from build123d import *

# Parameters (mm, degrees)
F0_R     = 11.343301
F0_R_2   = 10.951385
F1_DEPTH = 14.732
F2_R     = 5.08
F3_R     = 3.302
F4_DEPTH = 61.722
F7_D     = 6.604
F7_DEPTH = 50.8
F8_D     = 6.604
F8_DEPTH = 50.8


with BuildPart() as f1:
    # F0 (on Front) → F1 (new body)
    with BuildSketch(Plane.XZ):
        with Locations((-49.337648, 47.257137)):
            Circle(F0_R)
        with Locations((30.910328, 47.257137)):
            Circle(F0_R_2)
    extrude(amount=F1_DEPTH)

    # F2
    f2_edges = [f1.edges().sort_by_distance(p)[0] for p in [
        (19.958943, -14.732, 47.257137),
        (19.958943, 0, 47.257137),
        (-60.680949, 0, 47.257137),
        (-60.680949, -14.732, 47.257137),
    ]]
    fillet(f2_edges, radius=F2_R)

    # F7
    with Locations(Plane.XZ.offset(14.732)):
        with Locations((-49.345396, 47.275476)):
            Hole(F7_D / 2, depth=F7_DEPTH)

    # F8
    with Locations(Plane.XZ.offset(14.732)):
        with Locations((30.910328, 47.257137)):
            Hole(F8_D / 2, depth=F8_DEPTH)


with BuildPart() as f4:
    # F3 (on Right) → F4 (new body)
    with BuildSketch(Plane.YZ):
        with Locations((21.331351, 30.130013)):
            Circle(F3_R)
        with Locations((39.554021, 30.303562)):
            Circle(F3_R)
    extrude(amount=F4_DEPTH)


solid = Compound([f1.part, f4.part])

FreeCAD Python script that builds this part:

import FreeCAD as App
import Part
import Sketcher
Q = App.Units.Quantity


def edges_at(feature, points):
    """Names of the edges that pass closest to the given points."""
    edges = feature.Shape.Edges
    near = lambda p: min(range(len(edges)), key=lambda i: edges[i].distToShape(Part.Vertex(*p))[0])
    return sorted({f"Edge{near(p) + 1}" for p in points})

doc = App.newDocument("Part")
body = doc.addObject("PartDesign::Body", "Body")
body.AllowCompound = True

# Sketch on XZ plane
sketch1 = body.newObject("Sketcher::SketchObject", "Sketch")
sketch1.AttachmentSupport = (doc.getObject("XZ_Plane"), [""])
sketch1.MapMode = "FlatFace"
sketch1.addGeometry([
    Part.Circle(App.Vector(-49, 47, 0), App.Vector(0, 0, 1), 11),
    Part.Circle(App.Vector(31, 47, 0), App.Vector(0, 0, 1), 11),
], False)
sketch1.addConstraint([
    Sketcher.Constraint("Horizontal", 0, 3, 1, 3),
    Sketcher.Constraint("Diameter", 1, 21.90277),
    Sketcher.Constraint("Diameter", 0, 22.686602),
    Sketcher.Constraint("DistanceX", 0, 3, -1, 1, 49.337648),
    Sketcher.Constraint("DistanceX", -1, 1, 1, 3, 30.910328),
    Sketcher.Constraint("DistanceY", -1, 1, 0, 3, 47.257137),
])
pad1 = body.newObject("PartDesign::Pad", "Pad")
pad1.Profile = sketch1
pad1.Length = Q("0.58 in")
doc.recompute()

fillet = body.newObject("PartDesign::Fillet", "Fillet")
fillet.Base = (pad1, edges_at(pad1, [
    (19.959, -14.732, 47.257),
    (19.959, 0, 47.257),
    (-60.681, 0, 47.257),
    (-60.681, -14.732, 47.257),
]))
fillet.Radius = Q("0.2 in")

# Sketch on XZ plane
sketch2 = body.newObject("Sketcher::SketchObject", "Sketch001")
sketch2.AttachmentSupport = (doc.getObject("XZ_Plane"), [""])
sketch2.MapMode = "FlatFace"
sketch2.AttachmentOffset = App.Placement(App.Vector(0, 0, 0.58 * 25.4), App.Rotation())
sketch2.addGeometry(Part.Circle(App.Vector(-49.3, 47.3, 0), App.Vector(0, 0, 1), 3.3), False)
sketch2.addConstraint([
    Sketcher.Constraint("Diameter", 0, Q("0.26 in")),
    Sketcher.Constraint("DistanceX", 0, 3, -1, 1, 49.345396),
    Sketcher.Constraint("DistanceY", -1, 1, 0, 3, 47.275476),
])
doc.recompute()
hole = body.newObject("PartDesign::Hole", "Hole")
hole.Profile = sketch2
hole.ThreadType = "None"
hole.Diameter = Q("0.26 in")
hole.DepthType = "Dimension"
hole.Depth = Q("2 in")
hole.DrillPoint = "Flat"

# Sketch on XZ plane
sketch3 = body.newObject("Sketcher::SketchObject", "Sketch002")
sketch3.AttachmentSupport = (doc.getObject("XZ_Plane"), [""])
sketch3.MapMode = "FlatFace"
sketch3.AttachmentOffset = App.Placement(App.Vector(0, 0, 0.58 * 25.4), App.Rotation())
sketch3.addGeometry(Part.Circle(App.Vector(30.9, 47.3, 0), App.Vector(0, 0, 1), 3.3), False)
sketch3.addConstraint([
    Sketcher.Constraint("Diameter", 0, Q("0.26 in")),
    Sketcher.Constraint("DistanceX", -1, 1, 0, 3, 30.910328),
    Sketcher.Constraint("DistanceY", -1, 1, 0, 3, 47.257137),
])
doc.recompute()
hole2 = body.newObject("PartDesign::Hole", "Hole001")
hole2.Profile = sketch3
hole2.ThreadType = "None"
hole2.Diameter = Q("0.26 in")
hole2.DepthType = "Dimension"
hole2.Depth = Q("2 in")
hole2.DrillPoint = "Flat"
body2 = doc.addObject("PartDesign::Body", "Body001")
body2.AllowCompound = True

# Sketch on YZ plane
sketch4 = body2.newObject("Sketcher::SketchObject", "Sketch003")
sketch4.AttachmentSupport = (doc.getObject("YZ_Plane001"), [""])
sketch4.MapMode = "FlatFace"
sketch4.addGeometry([
    Part.Circle(App.Vector(21.3, 30.1, 0), App.Vector(0, 0, 1), 3.3),
    Part.Circle(App.Vector(39.6, 30.3, 0), App.Vector(0, 0, 1), 3.3),
], False)
sketch4.addConstraint([
    Sketcher.Constraint("Equal", 0, 1),
    Sketcher.Constraint("Diameter", 0, Q("0.26 in")),
    Sketcher.Constraint("DistanceX", -1, 1, 0, 3, 21.331351),
    Sketcher.Constraint("DistanceX", -1, 1, 1, 3, 39.554021),
    Sketcher.Constraint("DistanceY", -1, 1, 1, 3, 30.303562),
    Sketcher.Constraint("DistanceY", 0, 3, 1, 3, 0.173549),
])
pad2 = body2.newObject("PartDesign::Pad", "Pad001")
pad2.Profile = sketch4
pad2.Length = Q("2.43 in")

doc.recompute()
